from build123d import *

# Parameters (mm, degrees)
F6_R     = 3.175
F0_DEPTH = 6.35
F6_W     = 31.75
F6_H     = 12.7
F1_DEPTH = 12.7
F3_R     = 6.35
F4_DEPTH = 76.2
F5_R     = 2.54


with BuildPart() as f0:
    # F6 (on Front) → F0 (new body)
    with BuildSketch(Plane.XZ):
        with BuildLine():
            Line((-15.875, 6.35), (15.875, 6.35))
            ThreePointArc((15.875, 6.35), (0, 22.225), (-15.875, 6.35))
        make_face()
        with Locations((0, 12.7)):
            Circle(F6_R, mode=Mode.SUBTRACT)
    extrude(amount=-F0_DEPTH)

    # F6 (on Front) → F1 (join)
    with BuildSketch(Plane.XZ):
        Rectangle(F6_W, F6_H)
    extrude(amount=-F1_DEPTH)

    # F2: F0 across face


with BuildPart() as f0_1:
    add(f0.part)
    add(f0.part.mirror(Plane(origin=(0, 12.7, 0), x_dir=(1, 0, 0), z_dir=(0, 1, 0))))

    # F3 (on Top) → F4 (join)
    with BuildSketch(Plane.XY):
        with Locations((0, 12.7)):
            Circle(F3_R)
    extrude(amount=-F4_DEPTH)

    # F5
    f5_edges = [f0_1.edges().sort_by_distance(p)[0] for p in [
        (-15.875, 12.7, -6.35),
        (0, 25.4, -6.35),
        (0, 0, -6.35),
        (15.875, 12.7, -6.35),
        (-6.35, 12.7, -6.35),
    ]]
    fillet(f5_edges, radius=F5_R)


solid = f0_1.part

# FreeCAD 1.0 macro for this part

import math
import FreeCAD as App
import Part
import Sketcher
Q = App.Units.Quantity


def edges_at(feature, points):
    """Names of the edges that pass closest to the given points."""
    edges = feature.Shape.Edges
    near = lambda p: min(range(len(edges)), key=lambda i: edges[i].distToShape(Part.Vertex(*p))[0])
    return sorted({f"Edge{near(p) + 1}" for p in points})


def add_polygon(sketch, points):
    """Adds a closed chain of lines whose ends are joined by coincident constraints."""
    first, n = sketch.GeometryCount, len(points)
    for a, b in zip(points, points[1:] + points[:1]):
        sketch.addGeometry(Part.LineSegment(App.Vector(*a, 0), App.Vector(*b, 0)), False)
    for i in range(n):
        sketch.addConstraint(Sketcher.Constraint("Coincident", first + i, 2, first + (i + 1) % n, 1))

doc = App.newDocument("Part")
body = doc.addObject("PartDesign::Body", "Body")

sketch1 = body.newObject("Sketcher::SketchObject", "Sketch")
sketch1.AttachmentSupport = (doc.getObject("XZ_Plane"), [""])
sketch1.MapMode = "FlatFace"
sketch1.addGeometry([
    Part.LineSegment(App.Vector(-15.9, 6.3, 0), App.Vector(15.9, 6.3, 0)),
    Part.ArcOfCircle(Part.Circle(App.Vector(0, 6.3, 0), App.Vector(0, 0, 1), 15.9), math.radians(0), math.radians(180)),
    Part.Circle(App.Vector(0, 12.7, 0), App.Vector(0, 0, 1), 3.2),
], False)
sketch1.addConstraint([
    Sketcher.Constraint("Coincident", 0, 1, 1, 2),
    Sketcher.Constraint("Coincident", 1, 1, 0, 2),
    Sketcher.Constraint("Horizontal", 0),
    Sketcher.Constraint("PointOnObject", 1, 3, -2),
    Sketcher.Constraint("PointOnObject", 2, 3, -2),
    Sketcher.Constraint("Horizontal", 1, 3, 0, 1),
    Sketcher.Constraint("Diameter", 2, Q("0.25 in")),
    Sketcher.Constraint("Radius", 1, Q("0.625 in")),
    Sketcher.Constraint("DistanceY", -1, 1, 2, 3, Q("0.5 in")),
    Sketcher.Constraint("DistanceY", -1, 1, 1, 3, Q("0.25 in")),
])
pad1 = body.newObject("PartDesign::Pad", "Pad")
pad1.Profile = sketch1
pad1.Length = Q("0.25 in")
pad1.Reversed = True

sketch2 = body.newObject("Sketcher::SketchObject", "Sketch001")
sketch2.AttachmentSupport = (doc.getObject("XZ_Plane"), [""])
sketch2.MapMode = "FlatFace"
add_polygon(sketch2, [(-16, 6), (-16, -6), (16, -6), (16, 6)])
sketch2.addConstraint([
    Sketcher.Constraint("Vertical", 0),
    Sketcher.Constraint("Horizontal", 1),
    Sketcher.Constraint("Vertical", 2),
    Sketcher.Constraint("Horizontal", 3),
    Sketcher.Constraint("Symmetric", 0, 2, 2, 2, -1, 1),
    Sketcher.Constraint("DistanceY", 0, 2, 0, 1, Q("0.5 in")),
    Sketcher.Constraint("DistanceX", 1, 1, 1, 2, Q("1.25 in")),
])
pad2 = body.newObject("PartDesign::Pad", "Pad001")
pad2.Profile = sketch2
pad2.Length = Q("0.5 in")
pad2.Reversed = True
body2 = doc.addObject("PartDesign::Body", "Body001")
doc.recompute()

body2.BaseFeature = body
doc.recompute()

mirroring = doc.addObject("Part::Mirroring", "Mirroring")
mirroring.Source = body
mirroring.Base = App.Vector(0, 12.7, 0)
mirroring.Normal = App.Vector(0, 1, 0)
body3 = doc.addObject("PartDesign::Body", "Body002")
body3.BaseFeature = mirroring
boolean = body2.newObject("PartDesign::Boolean", "Boolean")
boolean.Type = "Fuse"
boolean.addObjects([body3])
doc.recompute()

sketch3 = body2.newObject("Sketcher::SketchObject", "Sketch002")
sketch3.AttachmentSupport = (doc.getObject("XY_Plane001"), [""])
sketch3.MapMode = "FlatFace"
sketch3.addGeometry(Part.Circle(App.Vector(0, 13, 0), App.Vector(0, 0, 1), 6), False)
sketch3.addConstraint([
    Sketcher.Constraint("PointOnObject", 0, 3, -2),
    Sketcher.Constraint("Diameter", 0, Q("0.5 in")),
    Sketcher.Constraint("DistanceY", -1, 1, 0, 3, Q("0.5 in")),
])
pad3 = body2.newObject("PartDesign::Pad", "Pad002")
pad3.Profile = sketch3
pad3.Length = Q("3 in")
pad3.Reversed = True
doc.recompute()

fillet = body2.newObject("PartDesign::Fillet", "Fillet")
fillet.Base = (pad3, edges_at(pad3, [
    (-15.875, 12.7, -6.35),
    (0, 25.4, -6.35),
    (0, 0, -6.35),
    (15.875, 12.7, -6.35),
    (-6.35, 12.7, -6.35),
]))
fillet.Radius = Q("0.1 in")
mirroring.Visibility = False

doc.recompute()
